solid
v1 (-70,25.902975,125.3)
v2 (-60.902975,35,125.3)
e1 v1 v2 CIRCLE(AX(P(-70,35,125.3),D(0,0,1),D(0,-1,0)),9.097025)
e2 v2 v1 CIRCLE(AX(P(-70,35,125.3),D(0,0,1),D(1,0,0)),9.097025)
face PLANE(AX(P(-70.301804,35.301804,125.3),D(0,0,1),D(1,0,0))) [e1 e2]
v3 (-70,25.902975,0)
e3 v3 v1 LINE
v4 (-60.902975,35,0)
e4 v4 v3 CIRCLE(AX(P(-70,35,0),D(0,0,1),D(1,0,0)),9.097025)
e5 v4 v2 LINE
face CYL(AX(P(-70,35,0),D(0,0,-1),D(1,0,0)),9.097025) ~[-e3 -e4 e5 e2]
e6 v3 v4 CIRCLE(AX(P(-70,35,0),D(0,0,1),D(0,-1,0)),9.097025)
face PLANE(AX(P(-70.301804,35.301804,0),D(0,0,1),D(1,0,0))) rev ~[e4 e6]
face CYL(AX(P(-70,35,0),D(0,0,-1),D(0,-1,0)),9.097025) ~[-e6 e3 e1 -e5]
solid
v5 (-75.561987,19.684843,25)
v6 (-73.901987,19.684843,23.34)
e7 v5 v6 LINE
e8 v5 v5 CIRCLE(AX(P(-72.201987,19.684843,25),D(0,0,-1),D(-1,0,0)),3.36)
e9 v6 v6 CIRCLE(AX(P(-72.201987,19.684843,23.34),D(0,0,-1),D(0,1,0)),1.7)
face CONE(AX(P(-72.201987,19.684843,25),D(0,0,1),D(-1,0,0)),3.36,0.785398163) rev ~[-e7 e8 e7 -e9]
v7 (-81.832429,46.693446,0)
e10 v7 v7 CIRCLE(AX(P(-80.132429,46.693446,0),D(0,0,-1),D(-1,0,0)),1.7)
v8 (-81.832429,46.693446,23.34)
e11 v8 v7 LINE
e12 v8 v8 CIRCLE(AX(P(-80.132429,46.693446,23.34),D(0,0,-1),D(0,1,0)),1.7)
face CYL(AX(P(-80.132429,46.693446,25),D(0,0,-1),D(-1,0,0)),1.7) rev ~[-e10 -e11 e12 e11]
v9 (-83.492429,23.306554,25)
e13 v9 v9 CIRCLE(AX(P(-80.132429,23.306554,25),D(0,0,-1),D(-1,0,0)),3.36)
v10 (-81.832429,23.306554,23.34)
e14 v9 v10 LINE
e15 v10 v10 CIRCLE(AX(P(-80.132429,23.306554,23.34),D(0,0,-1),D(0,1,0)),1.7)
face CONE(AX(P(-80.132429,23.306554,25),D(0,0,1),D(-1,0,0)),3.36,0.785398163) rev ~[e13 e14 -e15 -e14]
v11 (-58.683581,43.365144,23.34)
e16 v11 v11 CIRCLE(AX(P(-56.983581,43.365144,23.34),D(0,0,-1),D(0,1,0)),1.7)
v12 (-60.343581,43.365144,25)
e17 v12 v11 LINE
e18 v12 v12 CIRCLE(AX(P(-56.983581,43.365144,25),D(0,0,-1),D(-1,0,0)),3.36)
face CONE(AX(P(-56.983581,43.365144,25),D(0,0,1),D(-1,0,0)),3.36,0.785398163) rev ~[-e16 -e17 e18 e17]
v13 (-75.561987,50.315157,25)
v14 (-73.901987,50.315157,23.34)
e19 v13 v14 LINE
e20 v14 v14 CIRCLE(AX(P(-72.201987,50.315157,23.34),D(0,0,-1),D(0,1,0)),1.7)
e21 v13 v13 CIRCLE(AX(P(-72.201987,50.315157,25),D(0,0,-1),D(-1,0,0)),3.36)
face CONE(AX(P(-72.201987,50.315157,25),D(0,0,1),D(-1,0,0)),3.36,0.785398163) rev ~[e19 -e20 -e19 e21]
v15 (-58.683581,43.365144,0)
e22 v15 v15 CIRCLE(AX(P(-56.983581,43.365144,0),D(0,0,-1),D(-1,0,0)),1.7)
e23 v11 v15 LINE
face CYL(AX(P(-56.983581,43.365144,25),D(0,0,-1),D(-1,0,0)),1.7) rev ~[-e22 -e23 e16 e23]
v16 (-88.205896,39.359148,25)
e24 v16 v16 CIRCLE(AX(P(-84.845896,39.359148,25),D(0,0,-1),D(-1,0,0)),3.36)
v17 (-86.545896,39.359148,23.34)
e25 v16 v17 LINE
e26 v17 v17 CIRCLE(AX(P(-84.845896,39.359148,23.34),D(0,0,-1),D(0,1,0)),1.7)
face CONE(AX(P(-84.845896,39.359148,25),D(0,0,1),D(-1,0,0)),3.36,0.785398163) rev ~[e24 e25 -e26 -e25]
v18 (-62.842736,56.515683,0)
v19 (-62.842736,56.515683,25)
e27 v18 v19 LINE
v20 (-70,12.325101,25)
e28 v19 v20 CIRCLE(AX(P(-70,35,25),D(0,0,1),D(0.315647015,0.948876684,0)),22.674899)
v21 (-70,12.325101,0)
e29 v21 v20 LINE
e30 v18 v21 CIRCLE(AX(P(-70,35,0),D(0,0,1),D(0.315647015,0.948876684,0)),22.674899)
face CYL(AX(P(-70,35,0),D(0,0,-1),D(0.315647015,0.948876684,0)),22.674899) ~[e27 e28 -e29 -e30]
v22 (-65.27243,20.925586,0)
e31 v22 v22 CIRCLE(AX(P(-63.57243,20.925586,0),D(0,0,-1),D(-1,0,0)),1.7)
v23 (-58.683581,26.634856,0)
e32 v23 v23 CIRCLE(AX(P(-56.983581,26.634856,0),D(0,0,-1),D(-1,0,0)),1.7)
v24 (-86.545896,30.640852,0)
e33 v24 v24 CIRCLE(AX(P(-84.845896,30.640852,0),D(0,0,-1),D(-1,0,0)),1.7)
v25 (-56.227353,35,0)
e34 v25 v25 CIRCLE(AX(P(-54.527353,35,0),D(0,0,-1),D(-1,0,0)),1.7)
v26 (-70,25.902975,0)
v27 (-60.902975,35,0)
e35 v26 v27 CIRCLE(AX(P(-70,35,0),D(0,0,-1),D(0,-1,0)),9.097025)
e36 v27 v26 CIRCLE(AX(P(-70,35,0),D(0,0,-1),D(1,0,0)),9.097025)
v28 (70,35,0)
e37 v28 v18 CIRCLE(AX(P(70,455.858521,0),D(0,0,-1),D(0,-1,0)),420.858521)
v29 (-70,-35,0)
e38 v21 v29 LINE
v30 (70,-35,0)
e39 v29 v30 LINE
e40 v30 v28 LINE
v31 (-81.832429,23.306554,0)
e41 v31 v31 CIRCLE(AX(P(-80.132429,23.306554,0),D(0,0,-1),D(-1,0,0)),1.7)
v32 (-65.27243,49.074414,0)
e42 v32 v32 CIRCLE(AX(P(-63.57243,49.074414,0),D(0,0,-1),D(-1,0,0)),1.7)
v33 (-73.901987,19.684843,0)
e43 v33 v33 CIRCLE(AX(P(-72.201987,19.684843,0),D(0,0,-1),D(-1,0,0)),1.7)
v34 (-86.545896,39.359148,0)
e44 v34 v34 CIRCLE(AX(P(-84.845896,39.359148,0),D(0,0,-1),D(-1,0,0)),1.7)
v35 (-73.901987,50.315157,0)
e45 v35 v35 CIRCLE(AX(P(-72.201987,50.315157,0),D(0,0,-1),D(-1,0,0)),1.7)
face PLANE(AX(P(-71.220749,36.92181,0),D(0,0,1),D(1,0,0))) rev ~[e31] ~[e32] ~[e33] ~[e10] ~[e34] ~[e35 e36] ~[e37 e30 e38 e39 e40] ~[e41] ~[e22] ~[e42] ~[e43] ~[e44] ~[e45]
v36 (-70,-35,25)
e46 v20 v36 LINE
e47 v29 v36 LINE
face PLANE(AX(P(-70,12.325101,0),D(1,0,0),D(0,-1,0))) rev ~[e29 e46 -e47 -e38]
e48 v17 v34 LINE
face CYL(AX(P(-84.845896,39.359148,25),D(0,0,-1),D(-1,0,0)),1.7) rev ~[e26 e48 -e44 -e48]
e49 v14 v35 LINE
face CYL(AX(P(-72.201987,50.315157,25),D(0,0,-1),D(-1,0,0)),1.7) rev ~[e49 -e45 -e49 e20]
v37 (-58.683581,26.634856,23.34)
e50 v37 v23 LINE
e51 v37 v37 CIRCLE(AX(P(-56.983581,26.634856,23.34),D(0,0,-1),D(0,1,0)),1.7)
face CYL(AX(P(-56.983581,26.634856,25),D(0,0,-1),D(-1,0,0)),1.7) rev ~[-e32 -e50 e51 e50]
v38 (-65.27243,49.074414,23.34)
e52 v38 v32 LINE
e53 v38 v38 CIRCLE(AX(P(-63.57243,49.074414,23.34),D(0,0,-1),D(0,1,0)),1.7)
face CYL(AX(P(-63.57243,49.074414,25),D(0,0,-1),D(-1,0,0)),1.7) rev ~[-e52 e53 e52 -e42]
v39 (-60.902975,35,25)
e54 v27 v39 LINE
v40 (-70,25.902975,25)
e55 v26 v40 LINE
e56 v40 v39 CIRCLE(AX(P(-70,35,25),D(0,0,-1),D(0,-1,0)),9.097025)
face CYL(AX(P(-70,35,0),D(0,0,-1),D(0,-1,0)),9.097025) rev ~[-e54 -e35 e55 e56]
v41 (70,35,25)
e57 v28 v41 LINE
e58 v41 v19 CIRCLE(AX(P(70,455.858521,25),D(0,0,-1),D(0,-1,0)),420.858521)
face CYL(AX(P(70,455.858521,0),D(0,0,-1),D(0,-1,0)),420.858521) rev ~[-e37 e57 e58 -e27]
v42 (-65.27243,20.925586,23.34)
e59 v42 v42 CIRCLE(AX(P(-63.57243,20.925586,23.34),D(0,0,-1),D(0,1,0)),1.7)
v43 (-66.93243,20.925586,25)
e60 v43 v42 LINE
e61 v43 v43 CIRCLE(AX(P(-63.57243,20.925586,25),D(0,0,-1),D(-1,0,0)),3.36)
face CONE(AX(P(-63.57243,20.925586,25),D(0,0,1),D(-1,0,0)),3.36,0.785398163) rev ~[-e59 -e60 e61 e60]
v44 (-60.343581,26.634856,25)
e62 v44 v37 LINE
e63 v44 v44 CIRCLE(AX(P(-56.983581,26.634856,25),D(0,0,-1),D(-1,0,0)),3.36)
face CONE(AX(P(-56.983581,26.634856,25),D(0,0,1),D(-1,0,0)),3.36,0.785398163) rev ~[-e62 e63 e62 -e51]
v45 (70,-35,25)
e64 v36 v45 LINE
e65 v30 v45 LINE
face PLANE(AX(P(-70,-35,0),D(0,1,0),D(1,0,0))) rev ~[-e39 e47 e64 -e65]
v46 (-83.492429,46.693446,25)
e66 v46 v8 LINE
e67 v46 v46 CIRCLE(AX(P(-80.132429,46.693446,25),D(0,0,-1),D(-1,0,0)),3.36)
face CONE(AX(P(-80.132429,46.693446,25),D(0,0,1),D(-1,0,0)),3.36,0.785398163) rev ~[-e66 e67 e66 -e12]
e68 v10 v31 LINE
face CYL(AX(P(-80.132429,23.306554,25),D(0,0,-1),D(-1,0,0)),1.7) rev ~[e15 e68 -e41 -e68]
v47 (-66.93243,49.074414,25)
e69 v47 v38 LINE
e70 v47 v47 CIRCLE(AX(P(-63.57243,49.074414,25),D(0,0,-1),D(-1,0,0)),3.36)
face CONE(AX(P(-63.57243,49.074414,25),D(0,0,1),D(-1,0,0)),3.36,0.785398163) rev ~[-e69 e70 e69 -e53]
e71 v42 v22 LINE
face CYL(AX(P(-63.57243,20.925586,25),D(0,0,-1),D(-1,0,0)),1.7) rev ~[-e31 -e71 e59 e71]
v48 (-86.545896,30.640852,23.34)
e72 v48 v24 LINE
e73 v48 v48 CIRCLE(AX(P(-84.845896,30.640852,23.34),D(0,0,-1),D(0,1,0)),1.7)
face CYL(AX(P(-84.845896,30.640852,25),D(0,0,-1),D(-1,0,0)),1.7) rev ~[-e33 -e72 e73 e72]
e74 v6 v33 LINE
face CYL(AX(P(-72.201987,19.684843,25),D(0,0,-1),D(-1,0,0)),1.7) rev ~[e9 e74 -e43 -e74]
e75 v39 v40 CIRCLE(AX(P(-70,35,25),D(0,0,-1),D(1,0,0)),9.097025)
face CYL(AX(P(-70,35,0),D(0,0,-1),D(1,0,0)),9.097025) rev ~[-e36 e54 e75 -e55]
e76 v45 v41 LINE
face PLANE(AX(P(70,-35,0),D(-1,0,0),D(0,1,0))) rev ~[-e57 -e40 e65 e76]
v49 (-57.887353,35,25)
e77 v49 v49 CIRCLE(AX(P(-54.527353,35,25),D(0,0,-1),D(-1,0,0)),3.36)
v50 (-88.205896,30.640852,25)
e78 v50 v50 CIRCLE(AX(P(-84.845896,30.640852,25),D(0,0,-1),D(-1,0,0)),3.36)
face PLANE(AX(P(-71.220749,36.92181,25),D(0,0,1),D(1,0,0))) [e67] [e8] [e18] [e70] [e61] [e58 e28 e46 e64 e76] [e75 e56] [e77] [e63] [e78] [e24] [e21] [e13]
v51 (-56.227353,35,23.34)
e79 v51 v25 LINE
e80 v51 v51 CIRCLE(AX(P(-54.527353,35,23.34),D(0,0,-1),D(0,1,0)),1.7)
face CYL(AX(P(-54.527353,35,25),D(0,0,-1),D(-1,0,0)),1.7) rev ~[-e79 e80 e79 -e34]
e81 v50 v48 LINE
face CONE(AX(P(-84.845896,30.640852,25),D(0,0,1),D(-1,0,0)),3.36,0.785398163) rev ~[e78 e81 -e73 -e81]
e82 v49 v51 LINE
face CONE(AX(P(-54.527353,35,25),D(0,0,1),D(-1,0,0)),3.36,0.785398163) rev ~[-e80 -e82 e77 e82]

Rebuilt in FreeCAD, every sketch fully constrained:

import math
import FreeCAD as App
import Part
import Sketcher
Q = App.Units.Quantity

doc = App.newDocument("Part")
body = doc.addObject("PartDesign::Body", "Body")

# Sketch on XY plane
sketch1 = body.newObject("Sketcher::SketchObject", "Sketch")
sketch1.AttachmentSupport = (doc.getObject("XY_Plane"), [""])
sketch1.MapMode = "FlatFace"
sketch1.addGeometry([
    Part.ArcOfCircle(Part.Circle(App.Vector(-70, 35, 0), App.Vector(0, 0, 1), 22.674899), math.radians(71.600122), math.radians(270)),  # 0
    Part.LineSegment(App.Vector(-70, 12.325101, 0), App.Vector(-70, -35, 0)),  # 1
    Part.LineSegment(App.Vector(-70, -35, 0), App.Vector(70, -35, 0)),  # 2
    Part.LineSegment(App.Vector(70, -35, 0), App.Vector(70, 35, 0)),  # 3
    Part.ArcOfCircle(Part.Circle(App.Vector(70, 455.858521, 0), App.Vector(0, 0, 1), 420.858521), math.radians(-108.399878), math.radians(-90)),  # 4
    Part.ArcOfCircle(Part.Circle(App.Vector(-70, 35, 0), App.Vector(0, 0, 1), 9.097025), math.radians(0), math.radians(270)),  # 5
    Part.ArcOfCircle(Part.Circle(App.Vector(-70, 35, 0), App.Vector(0, 0, 1), 9.097025), math.radians(-90), math.radians(0)),  # 6
], False)
sketch1.addConstraint([
    Sketcher.Constraint("Coincident", 0, 2, 1, 1),
    Sketcher.Constraint("Coincident", 1, 2, 2, 1),
    Sketcher.Constraint("Coincident", 2, 2, 3, 1),
    Sketcher.Constraint("Coincident", 3, 2, 4, 2),
    Sketcher.Constraint("Tangent", 4, 1, 0, 1),
    Sketcher.Constraint("Tangent", 5, 1, 6, 2),
    Sketcher.Constraint("Coincident", 6, 1, 5, 2),
    Sketcher.Constraint("Vertical", 1),
    Sketcher.Constraint("Horizontal", 2),
    Sketcher.Constraint("Vertical", 3),
    Sketcher.Constraint("Coincident", 5, 3, 0, 3),
    Sketcher.Constraint("Symmetric", 1, 2, 3, 2, -1, 1),
    Sketcher.Constraint("Horizontal", 6, 3, 3, 2),
    Sketcher.Constraint("Horizontal", 3, 2, 5, 1),
    Sketcher.Constraint("Vertical", 6, 3, 0, 2),
    Sketcher.Constraint("Vertical", 4, 3, 2, 2),
    Sketcher.Constraint("Vertical", 1, 2, 6, 1),
    Sketcher.Constraint("DistanceX", 2, 1, 2, 2, Q("140 mm")),
    Sketcher.Constraint("DistanceY", 3, 1, 3, 2, Q("70 mm")),
    Sketcher.Constraint("Radius", 0, Q("22.674899 mm")),
    Sketcher.Constraint("Radius", 5, Q("9.097025 mm")),
])
pad1 = body.newObject("PartDesign::Pad", "Pad")
pad1.Profile = sketch1
pad1.Length = 25

# Sketch on XY plane
sketch2 = body.newObject("Sketcher::SketchObject", "Sketch001")
sketch2.AttachmentSupport = (doc.getObject("XY_Plane"), [""])
sketch2.MapMode = "FlatFace"
sketch2.AttachmentOffset = App.Placement(App.Vector(0, 0, 25), App.Rotation())
sketch2.addGeometry([
    Part.Circle(App.Vector(-72.201987, 50.315157, 0), App.Vector(0, 0, 1), 1.7),  # 0
    Part.Circle(App.Vector(-63.57243, 49.074414, 0), App.Vector(0, 0, 1), 1.7),  # 1
    Part.Circle(App.Vector(-80.132429, 46.693446, 0), App.Vector(0, 0, 1), 1.7),  # 2
    Part.Circle(App.Vector(-56.983581, 43.365144, 0), App.Vector(0, 0, 1), 1.7),  # 3
    Part.Circle(App.Vector(-54.527353, 35, 0), App.Vector(0, 0, 1), 1.7),  # 4
    Part.Circle(App.Vector(-56.983581, 26.634856, 0), App.Vector(0, 0, 1), 1.7),  # 5
    Part.Circle(App.Vector(-63.57243, 20.925586, 0), App.Vector(0, 0, 1), 1.7),  # 6
    Part.Circle(App.Vector(-72.201987, 19.684843, 0), App.Vector(0, 0, 1), 1.7),  # 7
    Part.Circle(App.Vector(-80.132429, 23.306554, 0), App.Vector(0, 0, 1), 1.7),  # 8
    Part.Circle(App.Vector(-84.845896, 30.640852, 0), App.Vector(0, 0, 1), 1.7),  # 9
    Part.Circle(App.Vector(-84.845896, 39.359148, 0), App.Vector(0, 0, 1), 1.7),  # 10
], False)
sketch2.addConstraint([
    Sketcher.Constraint("Equal", 0, 1),
    Sketcher.Constraint("Equal", 1, 2),
    Sketcher.Constraint("Equal", 2, 3),
    Sketcher.Constraint("Equal", 3, 4),
    Sketcher.Constraint("Equal", 4, 5),
    Sketcher.Constraint("Equal", 5, 6),
    Sketcher.Constraint("Equal", 6, 7),
    Sketcher.Constraint("Equal", 7, 8),
    Sketcher.Constraint("Equal", 8, 9),
    Sketcher.Constraint("Equal", 9, 10),
    Sketcher.Constraint("Vertical", 3, 3, 5, 3),
    Sketcher.Constraint("Vertical", 1, 3, 6, 3),
    Sketcher.Constraint("Vertical", 0, 3, 7, 3),
    Sketcher.Constraint("Vertical", 2, 3, 8, 3),
    Sketcher.Constraint("Vertical", 9, 3, 10, 3),
    Sketcher.Constraint("Diameter", 0, Q("3.4 mm")),
    Sketcher.Constraint("DistanceY", -1, 1, 4, 3, Q("35 mm")),
    Sketcher.Constraint("DistanceX", 2, 3, 1, 3, Q("16.559998 mm")),
    Sketcher.Constraint("DistanceY", 3, 3, 2, 3, Q("3.328302 mm")),
    Sketcher.Constraint("DistanceY", 5, 3, 0, 3, Q("23.680302 mm")),
    Sketcher.Constraint("DistanceY", 7, 3, 3, 3, Q("23.680302 mm")),
    Sketcher.Constraint("DistanceY", 8, 3, 5, 3, Q("3.328302 mm")),
    Sketcher.Constraint("DistanceX", 1, 3, -1, 1, Q("63.57243 mm")),
    Sketcher.Constraint("DistanceX", 3, 3, -1, 1, Q("56.983581 mm")),
    Sketcher.Constraint("DistanceY", -1, 1, 9, 3, Q("30.640852 mm")),
    Sketcher.Constraint("DistanceY", -1, 1, 10, 3, Q("39.359148 mm")),
    Sketcher.Constraint("DistanceX", 2, 3, 0, 3, Q("7.930441 mm")),
    Sketcher.Constraint("DistanceY", 2, 3, 0, 3, Q("3.621711 mm")),
    Sketcher.Constraint("DistanceY", 2, 3, 1, 3, Q("2.380968 mm")),
    Sketcher.Constraint("DistanceY", 6, 3, 5, 3, Q("5.70927 mm")),
    Sketcher.Constraint("DistanceX", 9, 3, 7, 3, Q("12.643908 mm")),
    Sketcher.Constraint("DistanceY", 7, 3, 9, 3, Q("10.956009 mm")),
    Sketcher.Constraint("DistanceX", 4, 3, -1, 1, Q("54.527353 mm")),
])
doc.recompute()
hole = body.newObject("PartDesign::Hole", "Hole")
hole.Profile = sketch2
hole.ThreadType = "None"
hole.Diameter = 3.4
hole.DepthType = "ThroughAll"
hole.HoleCutType = "Countersink"
hole.HoleCutDiameter = 6.72
hole.HoleCutCountersinkAngle = 90
body2 = doc.addObject("PartDesign::Body", "Body001")

# Sketch on XY plane
sketch3 = body2.newObject("Sketcher::SketchObject", "Sketch002")
sketch3.AttachmentSupport = (doc.getObject("XY_Plane001"), [""])
sketch3.MapMode = "FlatFace"
sketch3.addGeometry([
    Part.ArcOfCircle(Part.Circle(App.Vector(-70, 35, 0), App.Vector(0, 0, 1), 9.097025), math.radians(0), math.radians(270)),
    Part.ArcOfCircle(Part.Circle(App.Vector(-70, 35, 0), App.Vector(0, 0, 1), 9.097025), math.radians(-90), math.radians(0)),
], False)
sketch3.addConstraint([
    Sketcher.Constraint("Tangent", 0, 1, 1, 2),
    Sketcher.Constraint("Coincident", 1, 1, 0, 2),
    Sketcher.Constraint("Horizontal", 1, 3, 0, 1),
    Sketcher.Constraint("Vertical", 0, 3, 1, 1),
    Sketcher.Constraint("DistanceX", 0, 3, -1, 1, Q("70 mm")),
    Sketcher.Constraint("DistanceY", -1, 1, 0, 3, Q("35 mm")),
    Sketcher.Constraint("Radius", 0, Q("9.097025 mm")),
])
pad2 = body2.newObject("PartDesign::Pad", "Pad001")
pad2.Profile = sketch3
pad2.Length = 125.3

doc.recompute()
